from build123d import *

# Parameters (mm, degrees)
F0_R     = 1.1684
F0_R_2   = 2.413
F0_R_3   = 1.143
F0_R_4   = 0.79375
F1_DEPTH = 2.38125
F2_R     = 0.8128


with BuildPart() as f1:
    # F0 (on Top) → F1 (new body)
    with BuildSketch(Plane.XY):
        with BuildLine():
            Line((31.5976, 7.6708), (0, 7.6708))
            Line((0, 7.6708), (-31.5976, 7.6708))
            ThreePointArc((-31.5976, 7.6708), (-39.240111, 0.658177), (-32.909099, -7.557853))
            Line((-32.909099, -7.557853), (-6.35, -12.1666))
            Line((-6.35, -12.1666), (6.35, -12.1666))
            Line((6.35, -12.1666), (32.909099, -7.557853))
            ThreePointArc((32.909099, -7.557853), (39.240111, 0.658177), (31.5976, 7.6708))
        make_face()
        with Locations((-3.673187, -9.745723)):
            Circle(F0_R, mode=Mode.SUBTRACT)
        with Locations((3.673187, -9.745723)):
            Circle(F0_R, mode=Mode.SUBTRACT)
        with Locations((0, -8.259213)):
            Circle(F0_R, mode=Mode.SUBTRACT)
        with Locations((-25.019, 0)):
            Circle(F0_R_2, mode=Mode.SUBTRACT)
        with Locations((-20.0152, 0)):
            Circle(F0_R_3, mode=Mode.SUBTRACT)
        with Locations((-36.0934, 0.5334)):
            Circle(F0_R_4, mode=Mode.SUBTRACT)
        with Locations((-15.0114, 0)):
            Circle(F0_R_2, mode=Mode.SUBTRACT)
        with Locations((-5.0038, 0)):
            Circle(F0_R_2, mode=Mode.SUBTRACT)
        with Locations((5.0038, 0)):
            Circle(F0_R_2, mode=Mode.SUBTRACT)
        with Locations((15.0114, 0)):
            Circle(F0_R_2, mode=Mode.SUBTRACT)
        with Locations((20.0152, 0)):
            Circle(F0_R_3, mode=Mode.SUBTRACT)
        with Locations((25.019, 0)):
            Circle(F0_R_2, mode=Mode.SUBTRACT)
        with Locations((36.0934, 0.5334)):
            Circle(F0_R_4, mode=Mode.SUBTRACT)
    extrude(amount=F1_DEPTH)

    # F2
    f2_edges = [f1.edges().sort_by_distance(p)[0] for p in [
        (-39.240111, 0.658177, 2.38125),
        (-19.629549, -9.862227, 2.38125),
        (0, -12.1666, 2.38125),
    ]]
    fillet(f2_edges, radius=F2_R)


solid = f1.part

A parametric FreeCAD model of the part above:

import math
import FreeCAD as App
import Part
import Sketcher

V = App.Vector
Q = App.Units.Quantity


def edges_at(feature, points):
    """Names of the edges that pass closest to the given points."""
    edges = feature.Shape.Edges
    near = lambda p: min(range(len(edges)), key=lambda i: edges[i].distToShape(Part.Vertex(*p))[0])
    return sorted({f"Edge{near(p) + 1}" for p in points})

doc = App.newDocument("Part")
body = doc.addObject("PartDesign::Body", "Body")

sketch1 = doc.addObject("Sketcher::SketchObject", "Sketch")
body.addObject(sketch1)
sketch1.AttachmentSupport = (doc.XY_Plane, [""])
sketch1.MapMode = "FlatFace"
sketch1.addGeometry([
    Part.LineSegment(V(31.6, 7.7, 0), V(-31.6, 7.7, 0)),
    Part.ArcOfCircle(Part.Circle(V(-31.6, 0, 0), V(0, 0, 1), 7.7), math.radians(90), math.radians(260)),
    Part.LineSegment(V(-32.9, -7.6, 0), V(-6.3, -12.2, 0)),
    Part.LineSegment(V(-6.3, -12.2, 0), V(6.3, -12.2, 0)),
    Part.LineSegment(V(6.3, -12.2, 0), V(32.9, -7.6, 0)),
    Part.ArcOfCircle(Part.Circle(V(31.6, 0, 0), V(0, 0, 1), 7.7), math.radians(-80), math.radians(90)),
    Part.Circle(V(-3.7, -9.7, 0), V(0, 0, 1), 1.2),
    Part.Circle(V(0, -8.3, 0), V(0, 0, 1), 1.2),
    Part.Circle(V(3.7, -9.7, 0), V(0, 0, 1), 1.2),
    Part.Circle(V(-36.1, 0.5, 0), V(0, 0, 1), 0.8),
    Part.Circle(V(-25, 0, 0), V(0, 0, 1), 2.4),
    Part.Circle(V(-20, 0, 0), V(0, 0, 1), 1.1),
    Part.Circle(V(-15, 0, 0), V(0, 0, 1), 2.4),
    Part.Circle(V(-5, 0, 0), V(0, 0, 1), 2.4),
    Part.Circle(V(5, 0, 0), V(0, 0, 1), 2.4),
    Part.Circle(V(15, 0, 0), V(0, 0, 1), 2.4),
    Part.Circle(V(20, 0, 0), V(0, 0, 1), 1.1),
    Part.Circle(V(25, 0, 0), V(0, 0, 1), 2.4),
    Part.Circle(V(36.1, 0.5, 0), V(0, 0, 1), 0.8),
], False)
sketch1.addConstraint([
    Sketcher.Constraint("Tangent", 0, 2, 1, 1),
    Sketcher.Constraint("Tangent", 1, 2, 2, 1),
    Sketcher.Constraint("Coincident", 2, 2, 3, 1),
    Sketcher.Constraint("Coincident", 3, 2, 4, 1),
    Sketcher.Constraint("Tangent", 4, 2, 5, 1),
    Sketcher.Constraint("Tangent", 5, 2, 0, 1),
    Sketcher.Constraint("Horizontal", 0),
    Sketcher.Constraint("Horizontal", 3),
    Sketcher.Constraint("Equal", 1, 5),
    Sketcher.Constraint("Equal", 6, 7),
    Sketcher.Constraint("Equal", 7, 8),
    Sketcher.Constraint("Equal", 10, 12),
    Sketcher.Constraint("Equal", 12, 13),
    Sketcher.Constraint("Equal", 13, 14),
    Sketcher.Constraint("Equal", 14, 15),
    Sketcher.Constraint("Equal", 11, 16),
    Sketcher.Constraint("Equal", 15, 17),
    Sketcher.Constraint("Equal", 9, 18),
    Sketcher.Constraint("Symmetric", 1, 3, 5, 3, -1, 1),
    Sketcher.Constraint("Symmetric", 13, 3, 14, 3, -1, 1),
    Sketcher.Constraint("Symmetric", 12, 3, 15, 3, -1, 1),
    Sketcher.Constraint("Symmetric", 11, 3, 16, 3, -1, 1),
    Sketcher.Constraint("Symmetric", 10, 3, 17, 3, -1, 1),
    Sketcher.Constraint("Symmetric", 6, 3, 8, 3, -2),
    Sketcher.Constraint("Symmetric", 9, 3, 18, 3, -2),
    Sketcher.Constraint("PointOnObject", 7, 3, -2),
    Sketcher.Constraint("PointOnObject", 10, 3, -1),
    Sketcher.Constraint("PointOnObject", 11, 3, -1),
    Sketcher.Constraint("PointOnObject", 12, 3, -1),
    Sketcher.Constraint("PointOnObject", 13, 3, -1),
    Sketcher.Constraint("Horizontal", 1, 2, 4, 2),
    Sketcher.Constraint("Diameter", 10, Q("0.19 in")),
    Sketcher.Constraint("Diameter", 11, Q("0.09 in")),
    Sketcher.Constraint("Diameter", 6, Q("0.092 in")),
    Sketcher.Constraint("Diameter", 9, Q("0.0625 in")),
    Sketcher.Constraint("DistanceX", 3, 1, 3, 2, Q("0.5 in")),
    Sketcher.Constraint("Radius", 1, Q("0.302 in")),
    Sketcher.Constraint("DistanceX", 0, 2, 0, 1, Q("2.488 in")),
    Sketcher.Constraint("DistanceX", 15, 3, 18, 3, Q("0.83 in")),
    Sketcher.Constraint("DistanceX", 9, 3, -1, 1, Q("1.421 in")),
    Sketcher.Constraint("DistanceY", -1, 1, 9, 3, Q("0.021 in")),
    Sketcher.Constraint("DistanceX", 10, 3, -1, 1, Q("0.985 in")),
    Sketcher.Constraint("DistanceX", 11, 3, -1, 1, Q("0.788 in")),
    Sketcher.Constraint("DistanceX", 13, 3, -1, 1, Q("0.197 in")),
    Sketcher.Constraint("DistanceY", 2, 2, -1, 1, Q("0.479 in")),
    Sketcher.Constraint("DistanceY", 6, 3, 7, 3, 1.48651),
    Sketcher.Constraint("DistanceX", 6, 3, -1, 1, 3.673187),
    Sketcher.Constraint("DistanceY", 6, 3, -1, 1, 9.745723),
])
pad1 = doc.addObject("PartDesign::Pad", "Pad")
body.addObject(pad1)
pad1.Profile = sketch1
pad1.Length = Q("0.09375 in")
doc.recompute()

fillet = doc.addObject("PartDesign::Fillet", "Fillet")
body.addObject(fillet)
fillet.Base = (pad1, edges_at(pad1, [(-39.24, 0.658, 2.381), (-19.63, -9.862, 2.381), (0, -12.167, 2.381)]))
fillet.Radius = Q("0.032 in")

doc.recompute()
